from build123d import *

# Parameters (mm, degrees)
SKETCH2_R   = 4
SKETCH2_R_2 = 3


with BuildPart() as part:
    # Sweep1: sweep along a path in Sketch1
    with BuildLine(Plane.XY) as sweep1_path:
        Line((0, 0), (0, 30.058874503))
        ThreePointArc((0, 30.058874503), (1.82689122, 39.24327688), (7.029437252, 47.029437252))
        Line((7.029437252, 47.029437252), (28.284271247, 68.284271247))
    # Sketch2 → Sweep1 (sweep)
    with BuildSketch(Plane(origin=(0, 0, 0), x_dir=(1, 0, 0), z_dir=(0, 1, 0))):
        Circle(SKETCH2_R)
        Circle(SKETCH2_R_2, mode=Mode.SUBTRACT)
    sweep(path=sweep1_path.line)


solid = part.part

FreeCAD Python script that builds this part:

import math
import FreeCAD as App
import Part
import Sketcher
from FreeCAD import Vector
Q = App.Units.Quantity

doc = App.newDocument("Part")
body = doc.addObject("PartDesign::Body", "Body")

sketch1 = body.newObject("Sketcher::SketchObject", "Sketch")
sketch1.AttachmentSupport = (doc.getObject("XZ_Plane"), [""])
sketch1.MapMode = "FlatFace"
sketch1.addGeometry(Part.Circle(Vector(0, 0, 0), Vector(0, 0, 1), 4), False)
sketch1.addGeometry(Part.Circle(Vector(0, 0, 0), Vector(0, 0, 1), 3), False)
sketch1.addConstraint(Sketcher.Constraint("Coincident", 0, 3, -1, 1))
sketch1.addConstraint(Sketcher.Constraint("Coincident", 1, 3, -1, 1))
sketch1.addConstraint(Sketcher.Constraint("Diameter", 0, Q("8 mm")))
sketch1.addConstraint(Sketcher.Constraint("Diameter", 1, Q("6 mm")))

sketch2 = body.newObject("Sketcher::SketchObject", "Sketch001")
sketch2.AttachmentSupport = (doc.getObject("XY_Plane"), [""])
sketch2.MapMode = "FlatFace"
sketch2.addGeometry(Part.LineSegment(Vector(0, 0, 0), Vector(0, 30, 0)), False)
sketch2.addGeometry(Part.ArcOfCircle(Part.Circle(Vector(24, 30, 0), Vector(0, 0, 1), 24), math.radians(135), math.radians(180)), False)
sketch2.addGeometry(Part.LineSegment(Vector(7, 47, 0), Vector(28, 68, 0)), False)
sketch2.addConstraint(Sketcher.Constraint("Tangent", 0, 2, 1, 2))
sketch2.addConstraint(Sketcher.Constraint("Tangent", 1, 1, 2, 1))
sketch2.addConstraint(Sketcher.Constraint("Vertical", 0))
sketch2.addConstraint(Sketcher.Constraint("Coincident", 0, 1, -1, 1))
sketch2.addConstraint(Sketcher.Constraint("Radius", 1, Q("24 mm")))
sketch2.addConstraint(Sketcher.Constraint("Angle", 2, Q("45 deg")))
sketch2.addConstraint(Sketcher.Constraint("DistanceY", 0, 1, 0, 2, Q("30.058875 mm")))
sketch2.addConstraint(Sketcher.Constraint("DistanceX", -1, 1, 2, 2, Q("28.284271 mm")))
doc.recompute()

additivepipe = body.newObject("PartDesign::AdditivePipe", "AdditivePipe")
additivepipe.Profile = sketch1
additivepipe.Spine = (sketch2, ["Edge1", "Edge2", "Edge3"])

doc.recompute()
